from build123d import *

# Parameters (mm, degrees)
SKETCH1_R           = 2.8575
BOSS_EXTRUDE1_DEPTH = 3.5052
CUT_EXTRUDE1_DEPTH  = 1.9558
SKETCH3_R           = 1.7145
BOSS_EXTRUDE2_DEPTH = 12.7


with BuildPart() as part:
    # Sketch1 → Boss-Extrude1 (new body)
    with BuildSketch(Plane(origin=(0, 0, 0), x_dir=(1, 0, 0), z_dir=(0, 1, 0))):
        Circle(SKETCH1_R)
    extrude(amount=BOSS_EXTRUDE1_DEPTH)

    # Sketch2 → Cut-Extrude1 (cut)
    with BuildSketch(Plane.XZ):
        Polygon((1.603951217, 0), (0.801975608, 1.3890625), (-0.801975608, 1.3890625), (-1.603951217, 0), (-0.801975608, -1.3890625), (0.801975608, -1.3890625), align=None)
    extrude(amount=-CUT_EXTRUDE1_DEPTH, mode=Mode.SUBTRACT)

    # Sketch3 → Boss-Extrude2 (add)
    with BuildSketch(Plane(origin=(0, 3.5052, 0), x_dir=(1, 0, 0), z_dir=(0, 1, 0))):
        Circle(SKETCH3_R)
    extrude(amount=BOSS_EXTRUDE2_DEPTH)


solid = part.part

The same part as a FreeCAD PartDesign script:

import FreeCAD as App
import Part
import Sketcher
Q = App.Units.Quantity

doc = App.newDocument("Part")
params = doc.addObject("Spreadsheet::Sheet", "Params")
for row, (alias, value) in enumerate([
    ("sketch1_diameter", "0.225 in"),
    ("pad1_length", "0.138 in"),
    ("pocket1_length", "0.077 in"),
    ("sketch3_diameter", "0.135 in"),
    ("pad2_length", "0.5 in"),
], start=1):
    params.set(f"A{row}", alias)
    params.set(f"B{row}", "=" + value)
    params.setAlias(f"B{row}", alias)

body = doc.addObject("PartDesign::Body", "Body")

sketch1 = doc.addObject("Sketcher::SketchObject", "Sketch")
body.addObject(sketch1)
sketch1.AttachmentSupport = (doc.XZ_Plane, [""])
sketch1.MapMode = "FlatFace"
sketch1.addGeometry(Part.Circle(App.Vector(0, 0, 0), App.Vector(0, 0, 1), 2.9), False)
sketch1.addConstraint([
    Sketcher.Constraint("Coincident", 0, 3, -1, 1),
    Sketcher.Constraint("Diameter", 0, Q("0.225 in")),
])
sketch1.setExpression("Constraints[1]", "Params.sketch1_diameter")
pad1 = doc.addObject("PartDesign::Pad", "Pad")
body.addObject(pad1)
pad1.Profile = sketch1
pad1.setExpression("Length", "Params.pad1_length")
pad1.Reversed = True

sketch2 = doc.addObject("Sketcher::SketchObject", "Sketch001")
body.addObject(sketch2)
sketch2.AttachmentSupport = (doc.XZ_Plane, [""])
sketch2.MapMode = "FlatFace"
sketch2.addGeometry([
    Part.LineSegment(App.Vector(1.6, 0, 0), App.Vector(0.8, 1.4, 0)),
    Part.LineSegment(App.Vector(0.8, 1.4, 0), App.Vector(-0.8, 1.4, 0)),
    Part.LineSegment(App.Vector(-0.8, 1.4, 0), App.Vector(-1.6, 0, 0)),
    Part.LineSegment(App.Vector(-1.6, 0, 0), App.Vector(-0.8, -1.4, 0)),
    Part.LineSegment(App.Vector(-0.8, -1.4, 0), App.Vector(0.8, -1.4, 0)),
    Part.LineSegment(App.Vector(0.8, -1.4, 0), App.Vector(1.6, 0, 0)),
], False)
sketch2.addConstraint([
    Sketcher.Constraint("Coincident", 0, 2, 1, 1),
    Sketcher.Constraint("Coincident", 1, 2, 2, 1),
    Sketcher.Constraint("Coincident", 2, 2, 3, 1),
    Sketcher.Constraint("Coincident", 3, 2, 4, 1),
    Sketcher.Constraint("Coincident", 4, 2, 5, 1),
    Sketcher.Constraint("Coincident", 5, 2, 0, 1),
    Sketcher.Constraint("Horizontal", 1),
    Sketcher.Constraint("Horizontal", 4),
    Sketcher.Constraint("Symmetric", 0, 2, 3, 2, -1, 1),
    Sketcher.Constraint("Symmetric", 2, 2, 5, 2, -1, 1),
    Sketcher.Constraint("PointOnObject", 2, 2, -1),
    Sketcher.Constraint("Parallel", 2, 5),
    Sketcher.Constraint("Vertical", 1, 2, 3, 2),
    Sketcher.Constraint("Angle", 0, Q("120 deg")),
    Sketcher.Constraint("DistanceY", 3, 2, 1, 2, Q("0.109375 in")),
    Sketcher.Constraint("DistanceX", 1, 2, 1, 1, 1.603951),
])
pocket1 = doc.addObject("PartDesign::Pocket", "Pocket")
body.addObject(pocket1)
pocket1.Profile = sketch2
pocket1.setExpression("Length", "Params.pocket1_length")

sketch3 = doc.addObject("Sketcher::SketchObject", "Sketch002")
body.addObject(sketch3)
sketch3.AttachmentSupport = (doc.XZ_Plane, [""])
sketch3.MapMode = "FlatFace"
sketch3.AttachmentOffset = App.Placement(App.Vector(0, 0, -0.138 * 25.4), App.Rotation())
sketch3.addGeometry(Part.Circle(App.Vector(0, 0, 0), App.Vector(0, 0, 1), 1.7), False)
sketch3.addConstraint([
    Sketcher.Constraint("Coincident", 0, 3, -1, 1),
    Sketcher.Constraint("Diameter", 0, Q("0.135 in")),
])
sketch3.setExpression("Constraints[1]", "Params.sketch3_diameter")
pad2 = doc.addObject("PartDesign::Pad", "Pad001")
body.addObject(pad2)
pad2.Profile = sketch3
pad2.setExpression("Length", "Params.pad2_length")
pad2.Reversed = True

doc.recompute()
